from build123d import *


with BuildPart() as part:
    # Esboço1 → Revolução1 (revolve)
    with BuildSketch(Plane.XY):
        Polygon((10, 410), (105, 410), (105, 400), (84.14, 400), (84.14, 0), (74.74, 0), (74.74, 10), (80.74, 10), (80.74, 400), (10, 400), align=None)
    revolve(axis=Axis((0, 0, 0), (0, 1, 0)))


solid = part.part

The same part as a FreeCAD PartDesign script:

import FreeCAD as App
import Part
import Sketcher
from FreeCAD import Vector
Q = App.Units.Quantity


def add_polygon(sketch, points):
    """Adds a closed chain of lines whose ends are joined by coincident constraints."""
    first, n = sketch.GeometryCount, len(points)
    for a, b in zip(points, points[1:] + points[:1]):
        sketch.addGeometry(Part.LineSegment(App.Vector(*a, 0), App.Vector(*b, 0)), False)
    for i in range(n):
        sketch.addConstraint(Sketcher.Constraint("Coincident", first + i, 2, first + (i + 1) % n, 1))

doc = App.newDocument("Part")
body = doc.addObject("PartDesign::Body", "Body")

# Sketch on XY plane
sketch1 = body.newObject("Sketcher::SketchObject", "Sketch")
sketch1.AttachmentSupport = (doc.getObject("XY_Plane"), [""])
sketch1.MapMode = "FlatFace"
add_polygon(sketch1, [(105, 410), (10, 410), (10, 400), (80.74, 400), (80.74, 10), (74.74, 10), (74.74, 0), (84.14, 0), (84.14, 400), (105, 400)])  # lines 0-9
sketch1.addConstraint(Sketcher.Constraint("Horizontal", 0))
sketch1.addConstraint(Sketcher.Constraint("Vertical", 1))
sketch1.addConstraint(Sketcher.Constraint("Horizontal", 2))
sketch1.addConstraint(Sketcher.Constraint("Vertical", 3))
sketch1.addConstraint(Sketcher.Constraint("Horizontal", 4))
sketch1.addConstraint(Sketcher.Constraint("Vertical", 5))
sketch1.addConstraint(Sketcher.Constraint("Horizontal", 6))
sketch1.addConstraint(Sketcher.Constraint("Vertical", 7))
sketch1.addConstraint(Sketcher.Constraint("Horizontal", 8))
sketch1.addConstraint(Sketcher.Constraint("Vertical", 9))
sketch1.addConstraint(Sketcher.Constraint("PointOnObject", 5, 2, -1))
sketch1.addConstraint(Sketcher.Constraint("Horizontal", 2, 2, 7, 2))
sketch1.addConstraint(Sketcher.Constraint("Equal", 1, 5))
sketch1.addConstraint(Sketcher.Constraint("DistanceX", 0, 2, 0, 1, Q("95 mm")))
sketch1.addConstraint(Sketcher.Constraint("DistanceX", 4, 2, 4, 1, Q("6 mm")))
sketch1.addConstraint(Sketcher.Constraint("DistanceY", 1, 2, 1, 1, Q("10 mm")))
sketch1.addConstraint(Sketcher.Constraint("DistanceY", 3, 2, 3, 1, Q("390 mm")))
sketch1.addConstraint(Sketcher.Constraint("DistanceX", 6, 1, 6, 2, Q("9.4 mm")))
sketch1.addConstraint(Sketcher.Constraint("DistanceX", -1, 1, 0, 2, Q("10 mm")))
sketch1.addConstraint(Sketcher.Constraint("DistanceX", 2, 1, 2, 2, Q("70.74 mm")))
revolution = body.newObject("PartDesign::Revolution", "Revolution")
revolution.Profile = sketch1
revolution.ReferenceAxis = (sketch1, ["V_Axis"])
revolution.Angle = 360

doc.recompute()
